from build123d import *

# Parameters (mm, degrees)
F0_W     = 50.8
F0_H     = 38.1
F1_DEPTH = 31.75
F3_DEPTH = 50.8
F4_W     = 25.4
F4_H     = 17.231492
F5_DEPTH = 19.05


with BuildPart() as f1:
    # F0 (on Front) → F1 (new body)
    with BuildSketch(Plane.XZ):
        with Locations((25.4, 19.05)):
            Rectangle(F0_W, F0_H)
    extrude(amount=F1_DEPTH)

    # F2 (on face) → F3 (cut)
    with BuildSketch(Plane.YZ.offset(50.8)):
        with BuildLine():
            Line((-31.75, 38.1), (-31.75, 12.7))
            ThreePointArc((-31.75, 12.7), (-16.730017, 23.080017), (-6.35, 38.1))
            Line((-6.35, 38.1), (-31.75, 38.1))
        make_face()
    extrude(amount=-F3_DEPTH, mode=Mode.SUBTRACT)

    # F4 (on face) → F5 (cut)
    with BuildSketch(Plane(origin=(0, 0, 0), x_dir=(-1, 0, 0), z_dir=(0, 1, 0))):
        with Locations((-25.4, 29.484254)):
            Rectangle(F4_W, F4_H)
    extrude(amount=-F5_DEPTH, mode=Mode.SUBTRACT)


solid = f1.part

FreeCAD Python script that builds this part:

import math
import FreeCAD as App
import Part
import Sketcher

V = App.Vector
Q = App.Units.Quantity

doc = App.newDocument("Part")
body = doc.addObject("PartDesign::Body", "Body")

# Sketch on XZ plane
sketch1 = doc.addObject("Sketcher::SketchObject", "Sketch")
body.addObject(sketch1)
sketch1.AttachmentSupport = (doc.XZ_Plane, [""])
sketch1.MapMode = "FlatFace"
sketch1.addGeometry([
    Part.LineSegment(V(0, 38, 0), V(0, 0, 0)),
    Part.LineSegment(V(0, 0, 0), V(51, 0, 0)),
    Part.LineSegment(V(51, 0, 0), V(51, 38, 0)),
    Part.LineSegment(V(51, 38, 0), V(0, 38, 0)),
], False)
sketch1.addConstraint([
    Sketcher.Constraint("Coincident", 0, 2, 1, 1),
    Sketcher.Constraint("Coincident", 1, 2, 2, 1),
    Sketcher.Constraint("Coincident", 2, 2, 3, 1),
    Sketcher.Constraint("Coincident", 3, 2, 0, 1),
    Sketcher.Constraint("Vertical", 0),
    Sketcher.Constraint("Horizontal", 1),
    Sketcher.Constraint("Vertical", 2),
    Sketcher.Constraint("Horizontal", 3),
    Sketcher.Constraint("Coincident", 0, 2, -1, 1),
    Sketcher.Constraint("DistanceX", 1, 1, 1, 2, Q("2 in")),
    Sketcher.Constraint("DistanceY", 0, 2, 0, 1, Q("1.5 in")),
])
pad1 = doc.addObject("PartDesign::Pad", "Pad")
body.addObject(pad1)
pad1.Profile = sketch1
pad1.Length = Q("1.25 in")

# Sketch on YZ plane
sketch2 = doc.addObject("Sketcher::SketchObject", "Sketch001")
body.addObject(sketch2)
sketch2.AttachmentSupport = (doc.YZ_Plane, [""])
sketch2.MapMode = "FlatFace"
sketch2.AttachmentOffset = App.Placement(V(0, 0, 2 * 25.4), App.Rotation())
sketch2.addGeometry([
    Part.LineSegment(V(-32, 38, 0), V(-32, 13, 0)),
    Part.ArcOfCircle(Part.Circle(V(-53, 59, 0), V(0, 0, 1), 51), math.radians(-66), math.radians(-24)),
    Part.LineSegment(V(-6, 38, 0), V(-32, 38, 0)),
], False)
sketch2.addConstraint([
    Sketcher.Constraint("Coincident", 0, 2, 1, 1),
    Sketcher.Constraint("Coincident", 1, 2, 2, 1),
    Sketcher.Constraint("Coincident", 2, 2, 0, 1),
    Sketcher.Constraint("Vertical", 0),
    Sketcher.Constraint("Horizontal", 2),
    Sketcher.Constraint("Equal", 2, 0),
    Sketcher.Constraint("Radius", 1, Q("1.9999999 in")),
    Sketcher.Constraint("DistanceX", 2, 2, 2, 1, Q("1 in")),
    Sketcher.Constraint("DistanceY", -1, 1, 0, 2, Q("0.5 in")),
    Sketcher.Constraint("DistanceX", 0, 2, -1, 1, Q("1.25 in")),
])
pocket1 = doc.addObject("PartDesign::Pocket", "Pocket")
body.addObject(pocket1)
pocket1.Profile = sketch2
pocket1.Length = Q("2 in")

# Sketch on XZ plane
sketch3 = doc.addObject("Sketcher::SketchObject", "Sketch002")
body.addObject(sketch3)
sketch3.AttachmentSupport = (doc.XZ_Plane, [""])
sketch3.MapMode = "FlatFace"
sketch3.addGeometry([
    Part.LineSegment(V(38, 38, 0), V(38, 21, 0)),
    Part.LineSegment(V(38, 21, 0), V(13, 21, 0)),
    Part.LineSegment(V(13, 21, 0), V(13, 38, 0)),
    Part.LineSegment(V(13, 38, 0), V(38, 38, 0)),
], False)
sketch3.addConstraint([
    Sketcher.Constraint("Coincident", 0, 2, 1, 1),
    Sketcher.Constraint("Coincident", 1, 2, 2, 1),
    Sketcher.Constraint("Coincident", 2, 2, 3, 1),
    Sketcher.Constraint("Coincident", 3, 2, 0, 1),
    Sketcher.Constraint("Vertical", 0),
    Sketcher.Constraint("Horizontal", 1),
    Sketcher.Constraint("Vertical", 2),
    Sketcher.Constraint("Horizontal", 3),
    Sketcher.Constraint("DistanceX", 1, 2, 1, 1, Q("1 in")),
    Sketcher.Constraint("DistanceX", -1, 1, 0, 2, Q("1.5 in")),
    Sketcher.Constraint("DistanceY", -1, 1, 2, 2, Q("1.5 in")),
    Sketcher.Constraint("DistanceY", 0, 2, 0, 1, Q("17.231492 mm")),
])
pocket2 = doc.addObject("PartDesign::Pocket", "Pocket001")
body.addObject(pocket2)
pocket2.Profile = sketch3
pocket2.Length = Q("0.75 in")
pocket2.Reversed = True

doc.recompute()
